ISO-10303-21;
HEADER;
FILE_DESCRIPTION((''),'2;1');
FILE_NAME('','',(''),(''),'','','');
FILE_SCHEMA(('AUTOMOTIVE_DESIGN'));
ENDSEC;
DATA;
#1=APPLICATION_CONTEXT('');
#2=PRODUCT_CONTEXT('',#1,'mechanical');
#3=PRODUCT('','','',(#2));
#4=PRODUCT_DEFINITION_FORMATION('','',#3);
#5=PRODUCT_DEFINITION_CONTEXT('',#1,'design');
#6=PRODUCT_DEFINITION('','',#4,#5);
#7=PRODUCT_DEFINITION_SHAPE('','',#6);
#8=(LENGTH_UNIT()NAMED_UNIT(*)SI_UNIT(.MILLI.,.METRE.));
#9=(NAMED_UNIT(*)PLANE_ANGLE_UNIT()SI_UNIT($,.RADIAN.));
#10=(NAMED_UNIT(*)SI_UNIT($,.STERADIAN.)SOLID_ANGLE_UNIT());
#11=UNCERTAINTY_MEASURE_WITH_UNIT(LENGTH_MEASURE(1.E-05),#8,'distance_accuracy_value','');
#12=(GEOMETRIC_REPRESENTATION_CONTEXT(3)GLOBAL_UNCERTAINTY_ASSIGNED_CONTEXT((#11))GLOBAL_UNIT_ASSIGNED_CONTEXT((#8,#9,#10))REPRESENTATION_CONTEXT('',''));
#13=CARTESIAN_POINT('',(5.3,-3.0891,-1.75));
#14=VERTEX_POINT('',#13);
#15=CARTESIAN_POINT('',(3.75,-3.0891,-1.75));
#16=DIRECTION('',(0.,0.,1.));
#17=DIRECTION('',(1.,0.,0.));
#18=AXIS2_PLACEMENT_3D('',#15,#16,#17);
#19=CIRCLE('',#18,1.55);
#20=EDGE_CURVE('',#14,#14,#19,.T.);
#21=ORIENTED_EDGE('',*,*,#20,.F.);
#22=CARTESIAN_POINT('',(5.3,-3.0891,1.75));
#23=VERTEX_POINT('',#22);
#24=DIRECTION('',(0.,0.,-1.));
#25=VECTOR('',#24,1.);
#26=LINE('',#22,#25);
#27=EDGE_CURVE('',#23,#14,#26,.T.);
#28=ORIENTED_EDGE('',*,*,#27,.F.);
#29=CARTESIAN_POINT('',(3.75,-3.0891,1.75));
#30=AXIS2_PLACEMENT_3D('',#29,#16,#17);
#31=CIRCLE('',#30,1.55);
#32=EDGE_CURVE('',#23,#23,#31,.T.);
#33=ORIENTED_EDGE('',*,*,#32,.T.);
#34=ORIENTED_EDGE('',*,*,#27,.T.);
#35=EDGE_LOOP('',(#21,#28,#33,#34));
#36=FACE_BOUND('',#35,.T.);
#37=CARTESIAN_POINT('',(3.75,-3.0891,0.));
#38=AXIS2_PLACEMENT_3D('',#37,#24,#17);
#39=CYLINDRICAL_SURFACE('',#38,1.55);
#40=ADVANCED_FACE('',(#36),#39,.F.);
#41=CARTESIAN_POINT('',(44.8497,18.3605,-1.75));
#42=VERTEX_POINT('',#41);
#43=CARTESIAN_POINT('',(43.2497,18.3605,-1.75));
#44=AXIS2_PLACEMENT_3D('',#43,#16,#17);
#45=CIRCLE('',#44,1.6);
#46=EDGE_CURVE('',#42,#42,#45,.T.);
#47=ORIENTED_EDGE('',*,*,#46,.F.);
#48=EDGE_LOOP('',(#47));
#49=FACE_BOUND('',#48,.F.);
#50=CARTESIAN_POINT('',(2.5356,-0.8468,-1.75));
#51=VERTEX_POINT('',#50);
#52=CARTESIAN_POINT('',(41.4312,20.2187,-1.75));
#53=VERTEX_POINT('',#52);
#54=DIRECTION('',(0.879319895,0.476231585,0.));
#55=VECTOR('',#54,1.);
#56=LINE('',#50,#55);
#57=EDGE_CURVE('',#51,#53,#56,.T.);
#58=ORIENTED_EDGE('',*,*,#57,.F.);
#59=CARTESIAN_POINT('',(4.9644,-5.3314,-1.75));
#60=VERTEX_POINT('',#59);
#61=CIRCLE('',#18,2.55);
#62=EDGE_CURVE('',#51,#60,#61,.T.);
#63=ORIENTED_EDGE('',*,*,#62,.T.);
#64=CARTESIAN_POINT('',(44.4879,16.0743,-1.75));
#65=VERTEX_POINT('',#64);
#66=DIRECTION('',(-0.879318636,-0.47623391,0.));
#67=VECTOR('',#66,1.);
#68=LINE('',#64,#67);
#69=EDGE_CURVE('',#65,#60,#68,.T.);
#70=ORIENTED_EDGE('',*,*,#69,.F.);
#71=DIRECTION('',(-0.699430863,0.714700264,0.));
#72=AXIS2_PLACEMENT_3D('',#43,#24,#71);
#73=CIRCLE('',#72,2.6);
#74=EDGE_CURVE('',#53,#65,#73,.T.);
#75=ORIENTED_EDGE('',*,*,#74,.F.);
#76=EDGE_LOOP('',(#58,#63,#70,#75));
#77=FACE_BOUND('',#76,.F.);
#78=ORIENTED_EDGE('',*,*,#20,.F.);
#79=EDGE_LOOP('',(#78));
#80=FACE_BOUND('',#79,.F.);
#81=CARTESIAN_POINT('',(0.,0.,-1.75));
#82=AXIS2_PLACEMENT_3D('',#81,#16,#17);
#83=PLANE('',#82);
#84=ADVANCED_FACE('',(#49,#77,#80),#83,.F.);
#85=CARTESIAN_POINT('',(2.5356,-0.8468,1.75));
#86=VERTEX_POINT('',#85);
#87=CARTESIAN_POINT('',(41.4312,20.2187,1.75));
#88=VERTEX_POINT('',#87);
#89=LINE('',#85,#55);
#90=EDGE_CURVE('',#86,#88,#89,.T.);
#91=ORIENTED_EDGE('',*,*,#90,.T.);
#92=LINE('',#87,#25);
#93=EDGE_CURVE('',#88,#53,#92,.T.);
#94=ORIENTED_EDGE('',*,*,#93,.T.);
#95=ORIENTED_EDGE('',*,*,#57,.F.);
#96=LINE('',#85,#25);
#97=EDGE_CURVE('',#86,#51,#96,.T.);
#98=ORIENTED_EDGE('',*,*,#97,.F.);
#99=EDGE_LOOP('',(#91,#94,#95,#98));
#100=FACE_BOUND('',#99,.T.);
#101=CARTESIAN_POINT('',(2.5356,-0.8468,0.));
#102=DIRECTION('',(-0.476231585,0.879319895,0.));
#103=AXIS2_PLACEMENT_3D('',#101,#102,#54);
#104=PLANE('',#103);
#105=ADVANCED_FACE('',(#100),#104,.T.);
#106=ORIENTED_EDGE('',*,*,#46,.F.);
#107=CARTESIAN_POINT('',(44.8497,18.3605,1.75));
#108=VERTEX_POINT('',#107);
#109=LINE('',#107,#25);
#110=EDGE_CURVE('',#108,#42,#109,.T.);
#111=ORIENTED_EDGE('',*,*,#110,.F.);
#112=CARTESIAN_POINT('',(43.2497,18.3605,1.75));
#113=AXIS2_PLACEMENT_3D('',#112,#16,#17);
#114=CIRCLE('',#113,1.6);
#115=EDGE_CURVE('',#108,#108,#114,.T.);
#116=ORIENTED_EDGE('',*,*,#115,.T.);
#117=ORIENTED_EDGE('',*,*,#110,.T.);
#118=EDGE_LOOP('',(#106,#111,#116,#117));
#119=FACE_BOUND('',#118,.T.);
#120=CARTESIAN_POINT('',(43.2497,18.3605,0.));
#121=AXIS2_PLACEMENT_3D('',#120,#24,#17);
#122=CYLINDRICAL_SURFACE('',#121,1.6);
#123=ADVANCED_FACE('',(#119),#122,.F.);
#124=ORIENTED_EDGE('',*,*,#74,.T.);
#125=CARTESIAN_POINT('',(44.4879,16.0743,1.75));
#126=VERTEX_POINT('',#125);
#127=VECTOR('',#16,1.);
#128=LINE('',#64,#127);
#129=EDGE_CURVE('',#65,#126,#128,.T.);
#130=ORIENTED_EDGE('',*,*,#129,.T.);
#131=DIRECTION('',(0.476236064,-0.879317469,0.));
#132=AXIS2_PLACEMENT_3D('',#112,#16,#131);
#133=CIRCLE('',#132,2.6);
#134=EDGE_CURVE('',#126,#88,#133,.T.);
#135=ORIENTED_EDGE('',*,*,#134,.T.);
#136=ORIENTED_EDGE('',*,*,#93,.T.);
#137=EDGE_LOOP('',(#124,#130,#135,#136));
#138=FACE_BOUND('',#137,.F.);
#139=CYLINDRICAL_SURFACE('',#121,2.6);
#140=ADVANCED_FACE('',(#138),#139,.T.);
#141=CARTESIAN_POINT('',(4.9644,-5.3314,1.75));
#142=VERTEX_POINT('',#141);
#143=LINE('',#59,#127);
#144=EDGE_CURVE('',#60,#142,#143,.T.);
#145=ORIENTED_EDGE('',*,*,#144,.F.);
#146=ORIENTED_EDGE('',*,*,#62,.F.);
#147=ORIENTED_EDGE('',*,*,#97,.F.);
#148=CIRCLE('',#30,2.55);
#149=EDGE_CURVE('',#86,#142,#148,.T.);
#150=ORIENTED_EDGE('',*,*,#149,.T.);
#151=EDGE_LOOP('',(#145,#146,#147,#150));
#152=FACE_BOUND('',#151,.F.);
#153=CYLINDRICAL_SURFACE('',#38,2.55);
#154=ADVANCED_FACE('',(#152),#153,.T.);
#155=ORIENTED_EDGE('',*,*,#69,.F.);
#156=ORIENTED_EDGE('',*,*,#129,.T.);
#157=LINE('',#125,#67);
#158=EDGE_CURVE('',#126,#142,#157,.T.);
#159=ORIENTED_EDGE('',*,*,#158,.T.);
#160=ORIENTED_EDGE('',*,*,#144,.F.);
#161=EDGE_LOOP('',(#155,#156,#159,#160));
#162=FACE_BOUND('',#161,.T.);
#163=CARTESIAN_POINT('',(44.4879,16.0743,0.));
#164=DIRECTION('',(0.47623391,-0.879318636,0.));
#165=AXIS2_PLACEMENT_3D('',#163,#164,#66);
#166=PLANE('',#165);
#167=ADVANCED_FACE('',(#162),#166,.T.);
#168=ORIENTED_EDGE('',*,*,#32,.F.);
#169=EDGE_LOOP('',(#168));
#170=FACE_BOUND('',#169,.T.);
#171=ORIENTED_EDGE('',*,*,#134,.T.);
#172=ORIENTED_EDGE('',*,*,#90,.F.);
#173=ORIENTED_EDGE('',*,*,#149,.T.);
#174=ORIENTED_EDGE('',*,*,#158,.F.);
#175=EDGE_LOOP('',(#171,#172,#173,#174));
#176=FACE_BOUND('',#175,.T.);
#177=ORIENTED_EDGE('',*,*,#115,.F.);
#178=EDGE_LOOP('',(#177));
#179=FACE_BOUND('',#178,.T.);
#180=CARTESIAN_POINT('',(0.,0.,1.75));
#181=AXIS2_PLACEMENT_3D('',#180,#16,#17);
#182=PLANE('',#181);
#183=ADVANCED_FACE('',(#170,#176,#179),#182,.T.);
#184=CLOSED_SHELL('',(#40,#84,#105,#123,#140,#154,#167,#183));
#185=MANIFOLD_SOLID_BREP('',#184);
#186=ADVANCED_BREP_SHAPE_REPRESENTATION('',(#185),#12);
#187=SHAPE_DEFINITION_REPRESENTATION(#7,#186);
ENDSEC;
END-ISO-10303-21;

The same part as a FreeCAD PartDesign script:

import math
import FreeCAD as App
import Part
import Sketcher

V = App.Vector
Q = App.Units.Quantity

doc = App.newDocument("Part")
params = doc.addObject("Spreadsheet::Sheet", "Params")
for row, (alias, value) in enumerate([
    ("sketch1_diameter", "3.1 mm"),
    ("sketch1_diameter2", "3.2 mm"),
    ("sketch1_radius", "2.6 mm"),
    ("sketch1_radius2", "2.55 mm"),
    ("pad1_length", "3.5 mm"),
], start=1):
    params.set(f"A{row}", alias)
    params.set(f"B{row}", "=" + value)
    params.setAlias(f"B{row}", alias)

body = doc.addObject("PartDesign::Body", "Body")

sketch1 = body.newObject("Sketcher::SketchObject", "Sketch")
sketch1.AttachmentSupport = (doc.getObject("XY_Plane"), [""])
sketch1.MapMode = "FlatFace"
sketch1.addGeometry([
    Part.ArcOfCircle(Part.Circle(V(3.8, -3.1, 0), V(0, 0, 1), 2.5), math.radians(118), math.radians(298)),
    Part.LineSegment(V(5, -5.3, 0), V(44.5, 16.1, 0)),
    Part.ArcOfCircle(Part.Circle(V(43.2, 18.4, 0), V(0, 0, 1), 2.6), math.radians(-62), math.radians(134)),
    Part.LineSegment(V(41.4, 20.2, 0), V(2.5, -0.8, 0)),
    Part.Circle(V(3.8, -3.1, 0), V(0, 0, 1), 1.6),
    Part.Circle(V(43.2, 18.4, 0), V(0, 0, 1), 1.6),
], False)
sketch1.addConstraint([
    Sketcher.Constraint("Tangent", 0, 2, 1, 1),
    Sketcher.Constraint("Tangent", 1, 2, 2, 1),
    Sketcher.Constraint("Coincident", 2, 2, 3, 1),
    Sketcher.Constraint("Tangent", 3, 2, 0, 1),
    Sketcher.Constraint("Coincident", 4, 3, 0, 3),
    Sketcher.Constraint("Coincident", 5, 3, 2, 3),
    Sketcher.Constraint("Parallel", 1, 3),
    Sketcher.Constraint("Diameter", 4, 3.1),
    Sketcher.Constraint("Diameter", 5, 3.2),
    Sketcher.Constraint("Radius", 2, 2.6),
    Sketcher.Constraint("Radius", 0, 2.55),
    Sketcher.Constraint("Angle", 1, Q("28.4397 deg")),
    Sketcher.Constraint("DistanceX", -1, 1, 0, 3, 3.75),
    Sketcher.Constraint("DistanceY", 0, 3, -1, 1, 3.089),
    Sketcher.Constraint("DistanceX", -1, 1, 1, 2, 44.488),
])
sketch1.setExpression("Constraints[7]", "Params.sketch1_diameter")
sketch1.setExpression("Constraints[8]", "Params.sketch1_diameter2")
sketch1.setExpression("Constraints[9]", "Params.sketch1_radius")
sketch1.setExpression("Constraints[10]", "Params.sketch1_radius2")
pad1 = body.newObject("PartDesign::Pad", "Pad")
pad1.Profile = sketch1
pad1.setExpression("Length", "Params.pad1_length")
pad1.Midplane = True

doc.recompute()
